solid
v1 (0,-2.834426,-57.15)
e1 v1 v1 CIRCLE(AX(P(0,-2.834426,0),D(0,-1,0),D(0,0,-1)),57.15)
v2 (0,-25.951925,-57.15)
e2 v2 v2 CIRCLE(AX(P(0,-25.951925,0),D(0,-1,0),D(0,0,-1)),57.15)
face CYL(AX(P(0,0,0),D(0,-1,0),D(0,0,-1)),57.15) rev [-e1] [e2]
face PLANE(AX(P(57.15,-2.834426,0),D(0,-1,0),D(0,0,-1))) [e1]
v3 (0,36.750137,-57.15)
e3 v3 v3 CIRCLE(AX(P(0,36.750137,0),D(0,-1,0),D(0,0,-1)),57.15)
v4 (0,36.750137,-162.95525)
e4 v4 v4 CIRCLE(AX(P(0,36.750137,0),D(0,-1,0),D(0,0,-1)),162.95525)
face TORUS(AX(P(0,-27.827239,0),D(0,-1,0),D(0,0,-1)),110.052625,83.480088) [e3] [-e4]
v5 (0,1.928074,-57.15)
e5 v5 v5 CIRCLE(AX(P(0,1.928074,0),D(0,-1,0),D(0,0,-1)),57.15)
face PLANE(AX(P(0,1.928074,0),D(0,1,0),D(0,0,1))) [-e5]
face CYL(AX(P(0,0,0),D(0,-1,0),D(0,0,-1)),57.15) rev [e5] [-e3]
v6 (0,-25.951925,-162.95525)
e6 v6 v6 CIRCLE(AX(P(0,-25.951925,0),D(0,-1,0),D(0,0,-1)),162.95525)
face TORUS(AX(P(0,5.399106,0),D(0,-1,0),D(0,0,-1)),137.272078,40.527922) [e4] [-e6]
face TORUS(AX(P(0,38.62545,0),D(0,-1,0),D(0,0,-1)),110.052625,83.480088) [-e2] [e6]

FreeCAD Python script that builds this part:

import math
import FreeCAD as App
import Part
import Sketcher
from FreeCAD import Vector
Q = App.Units.Quantity

doc = App.newDocument("Part")
params = doc.addObject("Spreadsheet::Sheet", "Params")
for row, (alias, value) in enumerate([
    ("sketch1_width", "2.25 in"),
    ("sketch1_height", "0.1875 in"),
    ("revolution_angle", "360 deg"),
], start=1):
    params.set(f"A{row}", alias)
    params.set(f"B{row}", "=" + value)
    params.setAlias(f"B{row}", alias)

body = doc.addObject("PartDesign::Body", "Body")

# Sketch on XY plane
sketch1 = doc.addObject("Sketcher::SketchObject", "Sketch")
body.addObject(sketch1)
sketch1.AttachmentSupport = (doc.XY_Plane, [""])
sketch1.MapMode = "FlatFace"
sketch1.addGeometry([
    Part.LineSegment(Vector(57.1, 1.9, 0), Vector(0, 1.9, 0)),  # 0
    Part.LineSegment(Vector(0, 1.9, 0), Vector(0, -2.8, 0)),  # 1
    Part.LineSegment(Vector(0, -2.8, 0), Vector(57.1, -2.8, 0)),  # 2
    Part.LineSegment(Vector(57.1, -2.8, 0), Vector(57.1, -26, 0)),  # 3
    Part.ArcOfCircle(Part.Circle(Vector(110.1, 38.6, 0), Vector(0, 0, 1), 83.5), math.radians(-129), math.radians(-51)),  # 4
    Part.ArcOfCircle(Part.Circle(Vector(137.3, 5.4, 0), Vector(0, 0, 1), 40.5), math.radians(-51), math.radians(51)),  # 5
    Part.ArcOfCircle(Part.Circle(Vector(110.1, -27.8, 0), Vector(0, 0, 1), 83.5), math.radians(51), math.radians(129)),  # 6
    Part.LineSegment(Vector(57.1, 36.8, 0), Vector(57.1, 1.9, 0)),  # 7
], False)
sketch1.addConstraint([
    Sketcher.Constraint("Coincident", 0, 2, 1, 1),
    Sketcher.Constraint("Coincident", 1, 2, 2, 1),
    Sketcher.Constraint("Coincident", 2, 2, 3, 1),
    Sketcher.Constraint("Coincident", 3, 2, 4, 1),
    Sketcher.Constraint("Tangent", 4, 2, 5, 1),
    Sketcher.Constraint("Tangent", 5, 2, 6, 1),
    Sketcher.Constraint("Coincident", 6, 2, 7, 1),
    Sketcher.Constraint("Coincident", 7, 2, 0, 1),
    Sketcher.Constraint("Horizontal", 0),
    Sketcher.Constraint("Vertical", 1),
    Sketcher.Constraint("Horizontal", 2),
    Sketcher.Constraint("Vertical", 3),
    Sketcher.Constraint("Vertical", 7),
    Sketcher.Constraint("Equal", 4, 6),
    Sketcher.Constraint("PointOnObject", 0, 2, -2),
    Sketcher.Constraint("Horizontal", 3, 2, 4, 2),
    Sketcher.Constraint("Horizontal", 5, 2, 6, 2),
    Sketcher.Constraint("Vertical", 4, 3, 6, 3),
    Sketcher.Constraint("DistanceX", 0, 2, 0, 1, Q("2.25 in")),
    Sketcher.Constraint("DistanceY", 1, 2, 1, 1, Q("0.1875 in")),
    Sketcher.Constraint("Radius", 4, Q("83.480088 mm")),
    Sketcher.Constraint("DistanceY", 3, 2, 3, 1, Q("23.117499 mm")),
    Sketcher.Constraint("Radius", 5, Q("40.527922 mm")),
    Sketcher.Constraint("DistanceY", 7, 2, 7, 1, Q("34.822063 mm")),
    Sketcher.Constraint("DistanceY", -1, 1, 4, 3, Q("38.62545 mm")),
])
sketch1.setExpression("Constraints[18]", "Params.sketch1_width")
sketch1.setExpression("Constraints[19]", "Params.sketch1_height")
revolution = doc.addObject("PartDesign::Revolution", "Revolution")
body.addObject(revolution)
revolution.Profile = sketch1
revolution.ReferenceAxis = (sketch1, ["V_Axis"])
revolution.setExpression("Angle", "Params.revolution_angle")

doc.recompute()
